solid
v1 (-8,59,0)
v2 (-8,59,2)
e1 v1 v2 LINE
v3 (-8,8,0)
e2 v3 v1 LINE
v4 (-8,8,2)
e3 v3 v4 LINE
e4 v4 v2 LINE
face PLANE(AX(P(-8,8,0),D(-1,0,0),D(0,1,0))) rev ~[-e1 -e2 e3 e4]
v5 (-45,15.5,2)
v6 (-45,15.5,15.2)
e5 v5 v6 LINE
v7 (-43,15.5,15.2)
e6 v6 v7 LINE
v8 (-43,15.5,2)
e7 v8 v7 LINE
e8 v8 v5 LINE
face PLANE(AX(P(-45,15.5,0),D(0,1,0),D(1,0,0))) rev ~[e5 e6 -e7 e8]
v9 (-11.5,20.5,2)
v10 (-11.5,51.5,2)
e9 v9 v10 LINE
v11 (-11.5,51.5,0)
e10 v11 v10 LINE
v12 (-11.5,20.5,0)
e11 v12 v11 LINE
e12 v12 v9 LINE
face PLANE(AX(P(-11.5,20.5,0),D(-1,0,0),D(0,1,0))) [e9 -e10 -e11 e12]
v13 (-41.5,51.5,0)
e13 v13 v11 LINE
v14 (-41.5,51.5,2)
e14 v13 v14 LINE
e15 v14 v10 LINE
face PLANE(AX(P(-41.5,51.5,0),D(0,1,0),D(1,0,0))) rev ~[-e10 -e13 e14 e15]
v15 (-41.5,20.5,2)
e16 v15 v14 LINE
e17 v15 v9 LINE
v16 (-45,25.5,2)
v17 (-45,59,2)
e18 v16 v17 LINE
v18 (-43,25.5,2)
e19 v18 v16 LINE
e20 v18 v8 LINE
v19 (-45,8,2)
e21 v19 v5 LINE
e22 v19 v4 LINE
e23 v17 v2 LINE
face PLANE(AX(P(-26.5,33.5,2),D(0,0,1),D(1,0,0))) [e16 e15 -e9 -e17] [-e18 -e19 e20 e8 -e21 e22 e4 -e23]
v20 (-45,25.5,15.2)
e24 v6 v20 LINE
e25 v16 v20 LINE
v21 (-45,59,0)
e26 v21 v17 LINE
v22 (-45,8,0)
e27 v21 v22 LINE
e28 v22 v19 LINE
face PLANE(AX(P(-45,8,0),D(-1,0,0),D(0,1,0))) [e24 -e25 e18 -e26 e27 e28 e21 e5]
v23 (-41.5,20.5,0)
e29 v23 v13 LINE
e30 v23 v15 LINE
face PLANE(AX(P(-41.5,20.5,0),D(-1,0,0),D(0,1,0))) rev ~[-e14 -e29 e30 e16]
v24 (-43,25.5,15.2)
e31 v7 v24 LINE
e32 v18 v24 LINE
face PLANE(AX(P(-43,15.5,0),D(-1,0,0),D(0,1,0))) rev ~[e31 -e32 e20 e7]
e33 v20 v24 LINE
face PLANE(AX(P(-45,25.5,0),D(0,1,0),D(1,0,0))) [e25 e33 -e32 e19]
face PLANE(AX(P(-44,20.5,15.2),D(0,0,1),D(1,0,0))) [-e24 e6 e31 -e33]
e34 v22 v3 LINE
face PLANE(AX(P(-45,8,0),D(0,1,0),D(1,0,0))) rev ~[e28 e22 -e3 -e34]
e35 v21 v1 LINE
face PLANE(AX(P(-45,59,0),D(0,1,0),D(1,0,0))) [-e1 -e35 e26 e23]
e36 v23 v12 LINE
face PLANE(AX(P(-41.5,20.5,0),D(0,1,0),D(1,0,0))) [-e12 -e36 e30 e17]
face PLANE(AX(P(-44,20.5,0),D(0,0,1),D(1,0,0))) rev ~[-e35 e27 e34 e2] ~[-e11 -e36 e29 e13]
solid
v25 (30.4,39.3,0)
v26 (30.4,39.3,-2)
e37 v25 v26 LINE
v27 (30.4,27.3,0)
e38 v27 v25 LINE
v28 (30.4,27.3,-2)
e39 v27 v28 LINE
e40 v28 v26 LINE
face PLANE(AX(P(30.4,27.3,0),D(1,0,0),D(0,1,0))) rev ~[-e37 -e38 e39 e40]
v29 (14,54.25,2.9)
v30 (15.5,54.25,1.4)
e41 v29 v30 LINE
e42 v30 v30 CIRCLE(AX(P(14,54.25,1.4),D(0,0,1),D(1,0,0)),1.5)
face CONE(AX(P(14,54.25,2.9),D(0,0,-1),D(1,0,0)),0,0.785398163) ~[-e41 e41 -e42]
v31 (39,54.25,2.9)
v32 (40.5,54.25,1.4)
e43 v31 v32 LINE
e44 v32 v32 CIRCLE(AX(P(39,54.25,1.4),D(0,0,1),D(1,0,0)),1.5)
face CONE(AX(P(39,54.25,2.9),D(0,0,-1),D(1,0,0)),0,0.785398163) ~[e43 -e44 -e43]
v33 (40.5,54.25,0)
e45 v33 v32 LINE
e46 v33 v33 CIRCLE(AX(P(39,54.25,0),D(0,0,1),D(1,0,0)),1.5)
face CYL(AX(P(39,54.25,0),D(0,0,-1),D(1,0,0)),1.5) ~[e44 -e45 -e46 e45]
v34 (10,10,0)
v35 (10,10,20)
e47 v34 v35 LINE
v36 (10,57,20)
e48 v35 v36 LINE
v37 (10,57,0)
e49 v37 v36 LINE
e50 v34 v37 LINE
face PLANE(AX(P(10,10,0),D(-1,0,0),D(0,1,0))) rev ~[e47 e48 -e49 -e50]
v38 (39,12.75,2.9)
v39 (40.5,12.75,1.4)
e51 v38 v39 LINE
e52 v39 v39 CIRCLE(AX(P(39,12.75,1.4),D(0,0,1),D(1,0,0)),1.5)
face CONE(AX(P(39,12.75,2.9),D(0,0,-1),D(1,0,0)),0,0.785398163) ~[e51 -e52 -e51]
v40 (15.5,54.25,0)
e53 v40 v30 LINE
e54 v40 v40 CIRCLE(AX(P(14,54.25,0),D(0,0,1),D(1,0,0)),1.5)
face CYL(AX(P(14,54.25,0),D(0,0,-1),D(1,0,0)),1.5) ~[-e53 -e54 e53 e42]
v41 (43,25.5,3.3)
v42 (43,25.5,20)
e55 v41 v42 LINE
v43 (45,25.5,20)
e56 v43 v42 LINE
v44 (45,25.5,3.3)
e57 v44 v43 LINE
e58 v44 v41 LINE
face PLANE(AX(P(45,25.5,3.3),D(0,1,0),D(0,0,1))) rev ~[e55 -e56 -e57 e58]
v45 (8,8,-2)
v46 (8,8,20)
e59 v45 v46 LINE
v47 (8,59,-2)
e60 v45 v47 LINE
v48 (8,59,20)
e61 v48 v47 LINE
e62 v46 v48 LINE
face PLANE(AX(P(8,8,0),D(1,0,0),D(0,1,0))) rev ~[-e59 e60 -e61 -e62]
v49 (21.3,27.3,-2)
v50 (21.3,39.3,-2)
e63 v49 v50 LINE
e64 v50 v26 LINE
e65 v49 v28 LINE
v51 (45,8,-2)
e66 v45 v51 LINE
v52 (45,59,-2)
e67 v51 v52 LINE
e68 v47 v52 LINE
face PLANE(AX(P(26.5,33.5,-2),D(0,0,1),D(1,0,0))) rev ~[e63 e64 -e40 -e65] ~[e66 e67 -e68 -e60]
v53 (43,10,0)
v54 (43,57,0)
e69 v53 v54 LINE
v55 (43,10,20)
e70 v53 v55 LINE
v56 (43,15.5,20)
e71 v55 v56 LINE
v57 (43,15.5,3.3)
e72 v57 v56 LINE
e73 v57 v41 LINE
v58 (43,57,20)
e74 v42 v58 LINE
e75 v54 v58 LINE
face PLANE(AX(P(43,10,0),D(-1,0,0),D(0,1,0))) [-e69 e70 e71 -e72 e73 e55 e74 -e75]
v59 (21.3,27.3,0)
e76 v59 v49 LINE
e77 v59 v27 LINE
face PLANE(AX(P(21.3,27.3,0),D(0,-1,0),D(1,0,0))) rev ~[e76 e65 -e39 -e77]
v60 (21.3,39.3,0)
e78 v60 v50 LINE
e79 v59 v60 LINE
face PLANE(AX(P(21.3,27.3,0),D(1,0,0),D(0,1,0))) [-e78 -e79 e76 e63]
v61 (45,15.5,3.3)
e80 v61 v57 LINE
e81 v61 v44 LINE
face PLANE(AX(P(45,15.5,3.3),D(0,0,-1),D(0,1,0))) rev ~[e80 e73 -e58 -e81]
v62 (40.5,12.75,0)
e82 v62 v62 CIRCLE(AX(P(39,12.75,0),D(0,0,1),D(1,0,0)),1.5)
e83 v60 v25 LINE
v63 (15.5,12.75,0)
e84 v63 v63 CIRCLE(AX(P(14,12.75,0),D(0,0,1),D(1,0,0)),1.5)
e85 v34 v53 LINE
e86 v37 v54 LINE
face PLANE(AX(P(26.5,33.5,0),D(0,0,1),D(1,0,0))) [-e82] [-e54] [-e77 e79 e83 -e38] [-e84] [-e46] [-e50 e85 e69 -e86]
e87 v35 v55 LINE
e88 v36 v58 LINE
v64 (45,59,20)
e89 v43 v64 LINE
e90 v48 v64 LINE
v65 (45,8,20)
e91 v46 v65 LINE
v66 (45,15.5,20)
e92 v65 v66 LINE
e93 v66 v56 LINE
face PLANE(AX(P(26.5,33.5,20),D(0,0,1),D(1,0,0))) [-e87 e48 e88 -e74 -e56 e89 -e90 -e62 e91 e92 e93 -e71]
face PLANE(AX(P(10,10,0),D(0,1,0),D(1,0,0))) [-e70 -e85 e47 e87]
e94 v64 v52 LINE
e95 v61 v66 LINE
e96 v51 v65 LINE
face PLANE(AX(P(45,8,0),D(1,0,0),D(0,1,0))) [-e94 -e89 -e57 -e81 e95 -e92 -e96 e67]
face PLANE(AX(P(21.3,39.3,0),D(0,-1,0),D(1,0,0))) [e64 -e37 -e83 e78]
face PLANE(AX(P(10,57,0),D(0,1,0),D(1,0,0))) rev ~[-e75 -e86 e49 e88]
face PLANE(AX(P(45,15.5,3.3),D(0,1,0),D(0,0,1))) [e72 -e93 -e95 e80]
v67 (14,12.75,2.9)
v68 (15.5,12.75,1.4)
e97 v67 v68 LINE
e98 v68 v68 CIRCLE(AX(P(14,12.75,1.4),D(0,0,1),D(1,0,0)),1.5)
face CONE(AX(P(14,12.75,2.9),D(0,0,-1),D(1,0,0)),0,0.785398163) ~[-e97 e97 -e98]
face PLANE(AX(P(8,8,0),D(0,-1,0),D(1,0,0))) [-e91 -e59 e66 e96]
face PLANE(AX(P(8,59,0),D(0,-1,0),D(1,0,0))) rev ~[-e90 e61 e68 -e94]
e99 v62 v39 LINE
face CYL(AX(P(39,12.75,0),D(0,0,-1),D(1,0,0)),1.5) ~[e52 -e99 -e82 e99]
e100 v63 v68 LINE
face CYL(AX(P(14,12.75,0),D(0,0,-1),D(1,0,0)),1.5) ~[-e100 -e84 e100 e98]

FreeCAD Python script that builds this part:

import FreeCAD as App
import Part
import Sketcher

doc = App.newDocument("Part")
body = doc.addObject("PartDesign::Body", "Body")

sketch1 = body.newObject("Sketcher::SketchObject", "Sketch")
sketch1.AttachmentSupport = (doc.getObject("XY_Plane"), [""])
sketch1.MapMode = "FlatFace"
sketch1.addGeometry([
    Part.LineSegment(App.Vector(8, 59, 0), App.Vector(8, 8, 0)),
    Part.LineSegment(App.Vector(8, 8, 0), App.Vector(45, 8, 0)),
    Part.LineSegment(App.Vector(45, 8, 0), App.Vector(45, 59, 0)),
    Part.LineSegment(App.Vector(45, 59, 0), App.Vector(8, 59, 0)),
], False)
sketch1.addConstraint([
    Sketcher.Constraint("Coincident", 0, 2, 1, 1),
    Sketcher.Constraint("Coincident", 1, 2, 2, 1),
    Sketcher.Constraint("Coincident", 2, 2, 3, 1),
    Sketcher.Constraint("Coincident", 3, 2, 0, 1),
    Sketcher.Constraint("Vertical", 0),
    Sketcher.Constraint("Horizontal", 1),
    Sketcher.Constraint("Vertical", 2),
    Sketcher.Constraint("Horizontal", 3),
    Sketcher.Constraint("DistanceX", 1, 1, 1, 2, 37.0),
    Sketcher.Constraint("DistanceY", 0, 2, 0, 1, 51.0),
    Sketcher.Constraint("DistanceX", -1, 1, 0, 2, 8.0),
    Sketcher.Constraint("DistanceY", -1, 1, 0, 2, 8.0),
])
pad1 = body.newObject("PartDesign::Pad", "Pad")
pad1.Profile = sketch1
pad1.Type = "TwoLengths"
pad1.Length = 20
pad1.Length2 = 2

sketch2 = body.newObject("Sketcher::SketchObject", "Sketch001")
sketch2.AttachmentSupport = (doc.getObject("XY_Plane"), [""])
sketch2.MapMode = "FlatFace"
sketch2.addGeometry([
    Part.LineSegment(App.Vector(10, 57, 0), App.Vector(10, 10, 0)),
    Part.LineSegment(App.Vector(10, 10, 0), App.Vector(43, 10, 0)),
    Part.LineSegment(App.Vector(43, 10, 0), App.Vector(43, 57, 0)),
    Part.LineSegment(App.Vector(43, 57, 0), App.Vector(10, 57, 0)),
], False)
sketch2.addConstraint([
    Sketcher.Constraint("Coincident", 0, 2, 1, 1),
    Sketcher.Constraint("Coincident", 1, 2, 2, 1),
    Sketcher.Constraint("Coincident", 2, 2, 3, 1),
    Sketcher.Constraint("Coincident", 3, 2, 0, 1),
    Sketcher.Constraint("Vertical", 0),
    Sketcher.Constraint("Horizontal", 1),
    Sketcher.Constraint("Vertical", 2),
    Sketcher.Constraint("Horizontal", 3),
    Sketcher.Constraint("DistanceX", 1, 1, 1, 2, 33.0),
    Sketcher.Constraint("DistanceY", 0, 2, 0, 1, 47.0),
    Sketcher.Constraint("DistanceX", -1, 1, 0, 2, 10.0),
    Sketcher.Constraint("DistanceY", -1, 1, 0, 2, 10.0),
])
pocket1 = body.newObject("PartDesign::Pocket", "Pocket")
pocket1.Profile = sketch2
pocket1.Length = 20
pocket1.Reversed = True

sketch3 = body.newObject("Sketcher::SketchObject", "Sketch002")
sketch3.AttachmentSupport = (doc.getObject("XY_Plane"), [""])
sketch3.MapMode = "FlatFace"
sketch3.addGeometry([
    Part.LineSegment(App.Vector(21, 39, 0), App.Vector(21, 27, 0)),
    Part.LineSegment(App.Vector(21, 27, 0), App.Vector(30, 27, 0)),
    Part.LineSegment(App.Vector(30, 27, 0), App.Vector(30, 39, 0)),
    Part.LineSegment(App.Vector(30, 39, 0), App.Vector(21, 39, 0)),
], False)
sketch3.addConstraint([
    Sketcher.Constraint("Coincident", 0, 2, 1, 1),
    Sketcher.Constraint("Coincident", 1, 2, 2, 1),
    Sketcher.Constraint("Coincident", 2, 2, 3, 1),
    Sketcher.Constraint("Coincident", 3, 2, 0, 1),
    Sketcher.Constraint("Vertical", 0),
    Sketcher.Constraint("Horizontal", 1),
    Sketcher.Constraint("Vertical", 2),
    Sketcher.Constraint("Horizontal", 3),
    Sketcher.Constraint("DistanceY", 0, 2, 0, 1, 12.0),
    Sketcher.Constraint("DistanceX", 1, 1, 1, 2, 9.1),
    Sketcher.Constraint("DistanceX", -1, 1, 0, 2, 21.3),
    Sketcher.Constraint("DistanceY", -1, 1, 0, 2, 27.3),
])
pocket2 = body.newObject("PartDesign::Pocket", "Pocket001")
pocket2.Profile = sketch3
pocket2.Length = 2

sketch4 = body.newObject("Sketcher::SketchObject", "Sketch003")
sketch4.AttachmentSupport = (doc.getObject("YZ_Plane"), [""])
sketch4.MapMode = "FlatFace"
sketch4.AttachmentOffset = App.Placement(App.Vector(0, 0, 45), App.Rotation())
sketch4.addGeometry([
    Part.LineSegment(App.Vector(16, 20, 0), App.Vector(16, 3, 0)),
    Part.LineSegment(App.Vector(16, 3, 0), App.Vector(26, 3, 0)),
    Part.LineSegment(App.Vector(26, 3, 0), App.Vector(26, 20, 0)),
    Part.LineSegment(App.Vector(26, 20, 0), App.Vector(16, 20, 0)),
], False)
sketch4.addConstraint([
    Sketcher.Constraint("Coincident", 0, 2, 1, 1),
    Sketcher.Constraint("Coincident", 1, 2, 2, 1),
    Sketcher.Constraint("Coincident", 2, 2, 3, 1),
    Sketcher.Constraint("Coincident", 3, 2, 0, 1),
    Sketcher.Constraint("Vertical", 0),
    Sketcher.Constraint("Horizontal", 1),
    Sketcher.Constraint("Vertical", 2),
    Sketcher.Constraint("Horizontal", 3),
    Sketcher.Constraint("DistanceX", 1, 1, 1, 2, 10.0),
    Sketcher.Constraint("DistanceY", 0, 2, 0, 1, 16.7),
    Sketcher.Constraint("DistanceY", -1, 1, 2, 2, 20.0),
    Sketcher.Constraint("DistanceX", -1, 1, 0, 2, 15.5),
])
pocket3 = body.newObject("PartDesign::Pocket", "Pocket002")
pocket3.Profile = sketch4
pocket3.Length = 2

sketch5 = body.newObject("Sketcher::SketchObject", "Sketch004")
sketch5.AttachmentSupport = (doc.getObject("XY_Plane"), [""])
sketch5.MapMode = "FlatFace"
sketch5.addGeometry([
    Part.Circle(App.Vector(14, 54.2, 0), App.Vector(0, 0, 1), 1.5),
    Part.Circle(App.Vector(39, 54.2, 0), App.Vector(0, 0, 1), 1.5),
    Part.Circle(App.Vector(39, 12.8, 0), App.Vector(0, 0, 1), 1.5),
    Part.Circle(App.Vector(14, 12.8, 0), App.Vector(0, 0, 1), 1.5),
], False)
sketch5.addConstraint([
    Sketcher.Constraint("Equal", 0, 1),
    Sketcher.Constraint("Equal", 1, 2),
    Sketcher.Constraint("Equal", 2, 3),
    Sketcher.Constraint("Horizontal", 0, 3, 1, 3),
    Sketcher.Constraint("Horizontal", 2, 3, 3, 3),
    Sketcher.Constraint("Vertical", 1, 3, 2, 3),
    Sketcher.Constraint("Vertical", 0, 3, 3, 3),
    Sketcher.Constraint("Diameter", 0, 3.0),
    Sketcher.Constraint("DistanceX", -1, 1, 0, 3, 14.0),
    Sketcher.Constraint("DistanceX", -1, 1, 1, 3, 39.0),
    Sketcher.Constraint("DistanceY", 2, 3, 1, 3, 41.5),
    Sketcher.Constraint("DistanceY", -1, 1, 0, 3, 54.25),
])
pad2 = body.newObject("PartDesign::Pad", "Pad001")
pad2.Profile = sketch5
pad2.Length = 1.4

sketch6 = body.newObject("Sketcher::SketchObject", "Sketch005")
sketch6.AttachmentSupport = (doc.getObject("XZ_Plane"), [""])
sketch6.MapMode = "FlatFace"
sketch6.AttachmentOffset = App.Placement(App.Vector(0, 0, -54.25), App.Rotation())
sketch6.addGeometry([
    Part.LineSegment(App.Vector(15.5, 1.4, 0), App.Vector(14, 2.9, 0)),
    Part.LineSegment(App.Vector(14, 2.9, 0), App.Vector(14, 1.4, 0)),
    Part.LineSegment(App.Vector(14, 1.4, 0), App.Vector(15.5, 1.4, 0)),
], False)
sketch6.addGeometry(Part.LineSegment(App.Vector(14, 1.4, 0), App.Vector(14, 2.9, 0)), True)
sketch6.addConstraint([
    Sketcher.Constraint("Coincident", 0, 2, 1, 1),
    Sketcher.Constraint("Coincident", 1, 2, 2, 1),
    Sketcher.Constraint("Coincident", 2, 2, 0, 1),
    Sketcher.Constraint("Vertical", 1),
    Sketcher.Constraint("Horizontal", 2),
    Sketcher.Constraint("Vertical", 3),
    Sketcher.Constraint("Coincident", 3, 1, 1, 2),
    Sketcher.Constraint("Equal", 2, 1),
    Sketcher.Constraint("Equal", 1, 3),
    Sketcher.Constraint("DistanceX", 2, 1, 2, 2, 1.5),
    Sketcher.Constraint("DistanceX", -1, 1, 0, 2, 14.0),
    Sketcher.Constraint("DistanceY", -1, 1, 0, 2, 2.9),
])
revolution = body.newObject("PartDesign::Revolution", "Revolution")
revolution.Profile = sketch6
revolution.ReferenceAxis = (sketch6, ["Axis0"])
revolution.Angle = 360

sketch7 = body.newObject("Sketcher::SketchObject", "Sketch006")
sketch7.AttachmentSupport = (doc.getObject("XZ_Plane"), [""])
sketch7.MapMode = "FlatFace"
sketch7.AttachmentOffset = App.Placement(App.Vector(0, 0, -54.25), App.Rotation())
sketch7.addGeometry([
    Part.LineSegment(App.Vector(40.5, 1.4, 0), App.Vector(39, 2.9, 0)),
    Part.LineSegment(App.Vector(39, 2.9, 0), App.Vector(39, 1.4, 0)),
    Part.LineSegment(App.Vector(39, 1.4, 0), App.Vector(40.5, 1.4, 0)),
], False)
sketch7.addGeometry(Part.LineSegment(App.Vector(39, 1.4, 0), App.Vector(39, 2.9, 0)), True)
sketch7.addConstraint([
    Sketcher.Constraint("Coincident", 0, 2, 1, 1),
    Sketcher.Constraint("Coincident", 1, 2, 2, 1),
    Sketcher.Constraint("Coincident", 2, 2, 0, 1),
    Sketcher.Constraint("Vertical", 1),
    Sketcher.Constraint("Horizontal", 2),
    Sketcher.Constraint("Vertical", 3),
    Sketcher.Constraint("Coincident", 3, 1, 1, 2),
    Sketcher.Constraint("Equal", 2, 1),
    Sketcher.Constraint("Equal", 1, 3),
    Sketcher.Constraint("DistanceX", 2, 1, 2, 2, 1.5),
    Sketcher.Constraint("DistanceX", -1, 1, 0, 2, 39.0),
    Sketcher.Constraint("DistanceY", -1, 1, 0, 2, 2.9),
])
revolution2 = body.newObject("PartDesign::Revolution", "Revolution001")
revolution2.Profile = sketch7
revolution2.ReferenceAxis = (sketch7, ["Axis0"])
revolution2.Angle = 360

sketch8 = body.newObject("Sketcher::SketchObject", "Sketch007")
sketch8.AttachmentSupport = (doc.getObject("XZ_Plane"), [""])
sketch8.MapMode = "FlatFace"
sketch8.AttachmentOffset = App.Placement(App.Vector(0, 0, -12.75), App.Rotation())
sketch8.addGeometry([
    Part.LineSegment(App.Vector(15.5, 1.4, 0), App.Vector(14, 2.9, 0)),
    Part.LineSegment(App.Vector(14, 2.9, 0), App.Vector(14, 1.4, 0)),
    Part.LineSegment(App.Vector(14, 1.4, 0), App.Vector(15.5, 1.4, 0)),
], False)
sketch8.addGeometry(Part.LineSegment(App.Vector(14, 1.4, 0), App.Vector(14, 2.9, 0)), True)
sketch8.addConstraint([
    Sketcher.Constraint("Coincident", 0, 2, 1, 1),
    Sketcher.Constraint("Coincident", 1, 2, 2, 1),
    Sketcher.Constraint("Coincident", 2, 2, 0, 1),
    Sketcher.Constraint("Vertical", 1),
    Sketcher.Constraint("Horizontal", 2),
    Sketcher.Constraint("Vertical", 3),
    Sketcher.Constraint("Coincident", 3, 1, 1, 2),
    Sketcher.Constraint("Equal", 2, 1),
    Sketcher.Constraint("Equal", 1, 3),
    Sketcher.Constraint("DistanceX", 2, 1, 2, 2, 1.5),
    Sketcher.Constraint("DistanceX", -1, 1, 0, 2, 14.0),
    Sketcher.Constraint("DistanceY", -1, 1, 0, 2, 2.9),
])
revolution3 = body.newObject("PartDesign::Revolution", "Revolution002")
revolution3.Profile = sketch8
revolution3.ReferenceAxis = (sketch8, ["Axis0"])
revolution3.Angle = 360

sketch9 = body.newObject("Sketcher::SketchObject", "Sketch008")
sketch9.AttachmentSupport = (doc.getObject("XZ_Plane"), [""])
sketch9.MapMode = "FlatFace"
sketch9.AttachmentOffset = App.Placement(App.Vector(0, 0, -12.75), App.Rotation())
sketch9.addGeometry([
    Part.LineSegment(App.Vector(40.5, 1.4, 0), App.Vector(39, 2.9, 0)),
    Part.LineSegment(App.Vector(39, 2.9, 0), App.Vector(39, 1.4, 0)),
    Part.LineSegment(App.Vector(39, 1.4, 0), App.Vector(40.5, 1.4, 0)),
], False)
sketch9.addGeometry(Part.LineSegment(App.Vector(39, 1.4, 0), App.Vector(39, 2.9, 0)), True)
sketch9.addConstraint([
    Sketcher.Constraint("Coincident", 0, 2, 1, 1),
    Sketcher.Constraint("Coincident", 1, 2, 2, 1),
    Sketcher.Constraint("Coincident", 2, 2, 0, 1),
    Sketcher.Constraint("Vertical", 1),
    Sketcher.Constraint("Horizontal", 2),
    Sketcher.Constraint("Vertical", 3),
    Sketcher.Constraint("Coincident", 3, 1, 1, 2),
    Sketcher.Constraint("Equal", 2, 1),
    Sketcher.Constraint("Equal", 1, 3),
    Sketcher.Constraint("DistanceX", 2, 1, 2, 2, 1.5),
    Sketcher.Constraint("DistanceX", -1, 1, 0, 2, 39.0),
    Sketcher.Constraint("DistanceY", -1, 1, 0, 2, 2.9),
])
revolution4 = body.newObject("PartDesign::Revolution", "Revolution003")
revolution4.Profile = sketch9
revolution4.ReferenceAxis = (sketch9, ["Axis0"])
revolution4.Angle = 360
body2 = doc.addObject("PartDesign::Body", "Body001")

sketch10 = body2.newObject("Sketcher::SketchObject", "Sketch009")
sketch10.AttachmentSupport = (doc.getObject("XY_Plane001"), [""])
sketch10.MapMode = "FlatFace"
sketch10.addGeometry([
    Part.LineSegment(App.Vector(-45, 59, 0), App.Vector(-45, 8, 0)),
    Part.LineSegment(App.Vector(-45, 8, 0), App.Vector(-8, 8, 0)),
    Part.LineSegment(App.Vector(-8, 8, 0), App.Vector(-8, 59, 0)),
    Part.LineSegment(App.Vector(-8, 59, 0), App.Vector(-45, 59, 0)),
], False)
sketch10.addConstraint([
    Sketcher.Constraint("Coincident", 0, 2, 1, 1),
    Sketcher.Constraint("Coincident", 1, 2, 2, 1),
    Sketcher.Constraint("Coincident", 2, 2, 3, 1),
    Sketcher.Constraint("Coincident", 3, 2, 0, 1),
    Sketcher.Constraint("Vertical", 0),
    Sketcher.Constraint("Horizontal", 1),
    Sketcher.Constraint("Vertical", 2),
    Sketcher.Constraint("Horizontal", 3),
    Sketcher.Constraint("DistanceX", 1, 1, 1, 2, 37.0),
    Sketcher.Constraint("DistanceY", 0, 2, 0, 1, 51.0),
    Sketcher.Constraint("DistanceX", 0, 2, -1, 1, 45.0),
    Sketcher.Constraint("DistanceY", -1, 1, 0, 2, 8.0),
])
pad3 = body2.newObject("PartDesign::Pad", "Pad002")
pad3.Profile = sketch10
pad3.Length = 2

sketch11 = body2.newObject("Sketcher::SketchObject", "Sketch010")
sketch11.AttachmentSupport = (doc.getObject("XY_Plane001"), [""])
sketch11.MapMode = "FlatFace"
sketch11.addGeometry([
    Part.LineSegment(App.Vector(-45, 25.5, 0), App.Vector(-45, 15.5, 0)),
    Part.LineSegment(App.Vector(-45, 15.5, 0), App.Vector(-43, 15.5, 0)),
    Part.LineSegment(App.Vector(-43, 15.5, 0), App.Vector(-43, 25.5, 0)),
    Part.LineSegment(App.Vector(-43, 25.5, 0), App.Vector(-45, 25.5, 0)),
], False)
sketch11.addConstraint([
    Sketcher.Constraint("Coincident", 0, 2, 1, 1),
    Sketcher.Constraint("Coincident", 1, 2, 2, 1),
    Sketcher.Constraint("Coincident", 2, 2, 3, 1),
    Sketcher.Constraint("Coincident", 3, 2, 0, 1),
    Sketcher.Constraint("Vertical", 0),
    Sketcher.Constraint("Horizontal", 1),
    Sketcher.Constraint("Vertical", 2),
    Sketcher.Constraint("Horizontal", 3),
    Sketcher.Constraint("DistanceX", 1, 1, 1, 2, 2.0),
    Sketcher.Constraint("DistanceY", 0, 2, 0, 1, 10.0),
    Sketcher.Constraint("DistanceX", 0, 2, -1, 1, 45.0),
    Sketcher.Constraint("DistanceY", -1, 1, 0, 2, 15.5),
])
pad4 = body2.newObject("PartDesign::Pad", "Pad003")
pad4.Profile = sketch11
pad4.Length = 15.2

sketch12 = body2.newObject("Sketcher::SketchObject", "Sketch011")
sketch12.AttachmentSupport = (doc.getObject("XY_Plane001"), [""])
sketch12.MapMode = "FlatFace"
sketch12.addGeometry([
    Part.LineSegment(App.Vector(-42, 52, 0), App.Vector(-42, 20, 0)),
    Part.LineSegment(App.Vector(-42, 20, 0), App.Vector(-12, 20, 0)),
    Part.LineSegment(App.Vector(-12, 20, 0), App.Vector(-12, 52, 0)),
    Part.LineSegment(App.Vector(-12, 52, 0), App.Vector(-42, 52, 0)),
], False)
sketch12.addConstraint([
    Sketcher.Constraint("Coincident", 0, 2, 1, 1),
    Sketcher.Constraint("Coincident", 1, 2, 2, 1),
    Sketcher.Constraint("Coincident", 2, 2, 3, 1),
    Sketcher.Constraint("Coincident", 3, 2, 0, 1),
    Sketcher.Constraint("Vertical", 0),
    Sketcher.Constraint("Horizontal", 1),
    Sketcher.Constraint("Vertical", 2),
    Sketcher.Constraint("Horizontal", 3),
    Sketcher.Constraint("DistanceX", 1, 1, 1, 2, 30.0),
    Sketcher.Constraint("DistanceY", 0, 2, 0, 1, 31.0),
    Sketcher.Constraint("DistanceX", 0, 2, -1, 1, 41.5),
    Sketcher.Constraint("DistanceY", -1, 1, 0, 2, 20.5),
])
pocket4 = body2.newObject("PartDesign::Pocket", "Pocket003")
pocket4.Profile = sketch12
pocket4.Length = 2
pocket4.Reversed = True

doc.recompute()
